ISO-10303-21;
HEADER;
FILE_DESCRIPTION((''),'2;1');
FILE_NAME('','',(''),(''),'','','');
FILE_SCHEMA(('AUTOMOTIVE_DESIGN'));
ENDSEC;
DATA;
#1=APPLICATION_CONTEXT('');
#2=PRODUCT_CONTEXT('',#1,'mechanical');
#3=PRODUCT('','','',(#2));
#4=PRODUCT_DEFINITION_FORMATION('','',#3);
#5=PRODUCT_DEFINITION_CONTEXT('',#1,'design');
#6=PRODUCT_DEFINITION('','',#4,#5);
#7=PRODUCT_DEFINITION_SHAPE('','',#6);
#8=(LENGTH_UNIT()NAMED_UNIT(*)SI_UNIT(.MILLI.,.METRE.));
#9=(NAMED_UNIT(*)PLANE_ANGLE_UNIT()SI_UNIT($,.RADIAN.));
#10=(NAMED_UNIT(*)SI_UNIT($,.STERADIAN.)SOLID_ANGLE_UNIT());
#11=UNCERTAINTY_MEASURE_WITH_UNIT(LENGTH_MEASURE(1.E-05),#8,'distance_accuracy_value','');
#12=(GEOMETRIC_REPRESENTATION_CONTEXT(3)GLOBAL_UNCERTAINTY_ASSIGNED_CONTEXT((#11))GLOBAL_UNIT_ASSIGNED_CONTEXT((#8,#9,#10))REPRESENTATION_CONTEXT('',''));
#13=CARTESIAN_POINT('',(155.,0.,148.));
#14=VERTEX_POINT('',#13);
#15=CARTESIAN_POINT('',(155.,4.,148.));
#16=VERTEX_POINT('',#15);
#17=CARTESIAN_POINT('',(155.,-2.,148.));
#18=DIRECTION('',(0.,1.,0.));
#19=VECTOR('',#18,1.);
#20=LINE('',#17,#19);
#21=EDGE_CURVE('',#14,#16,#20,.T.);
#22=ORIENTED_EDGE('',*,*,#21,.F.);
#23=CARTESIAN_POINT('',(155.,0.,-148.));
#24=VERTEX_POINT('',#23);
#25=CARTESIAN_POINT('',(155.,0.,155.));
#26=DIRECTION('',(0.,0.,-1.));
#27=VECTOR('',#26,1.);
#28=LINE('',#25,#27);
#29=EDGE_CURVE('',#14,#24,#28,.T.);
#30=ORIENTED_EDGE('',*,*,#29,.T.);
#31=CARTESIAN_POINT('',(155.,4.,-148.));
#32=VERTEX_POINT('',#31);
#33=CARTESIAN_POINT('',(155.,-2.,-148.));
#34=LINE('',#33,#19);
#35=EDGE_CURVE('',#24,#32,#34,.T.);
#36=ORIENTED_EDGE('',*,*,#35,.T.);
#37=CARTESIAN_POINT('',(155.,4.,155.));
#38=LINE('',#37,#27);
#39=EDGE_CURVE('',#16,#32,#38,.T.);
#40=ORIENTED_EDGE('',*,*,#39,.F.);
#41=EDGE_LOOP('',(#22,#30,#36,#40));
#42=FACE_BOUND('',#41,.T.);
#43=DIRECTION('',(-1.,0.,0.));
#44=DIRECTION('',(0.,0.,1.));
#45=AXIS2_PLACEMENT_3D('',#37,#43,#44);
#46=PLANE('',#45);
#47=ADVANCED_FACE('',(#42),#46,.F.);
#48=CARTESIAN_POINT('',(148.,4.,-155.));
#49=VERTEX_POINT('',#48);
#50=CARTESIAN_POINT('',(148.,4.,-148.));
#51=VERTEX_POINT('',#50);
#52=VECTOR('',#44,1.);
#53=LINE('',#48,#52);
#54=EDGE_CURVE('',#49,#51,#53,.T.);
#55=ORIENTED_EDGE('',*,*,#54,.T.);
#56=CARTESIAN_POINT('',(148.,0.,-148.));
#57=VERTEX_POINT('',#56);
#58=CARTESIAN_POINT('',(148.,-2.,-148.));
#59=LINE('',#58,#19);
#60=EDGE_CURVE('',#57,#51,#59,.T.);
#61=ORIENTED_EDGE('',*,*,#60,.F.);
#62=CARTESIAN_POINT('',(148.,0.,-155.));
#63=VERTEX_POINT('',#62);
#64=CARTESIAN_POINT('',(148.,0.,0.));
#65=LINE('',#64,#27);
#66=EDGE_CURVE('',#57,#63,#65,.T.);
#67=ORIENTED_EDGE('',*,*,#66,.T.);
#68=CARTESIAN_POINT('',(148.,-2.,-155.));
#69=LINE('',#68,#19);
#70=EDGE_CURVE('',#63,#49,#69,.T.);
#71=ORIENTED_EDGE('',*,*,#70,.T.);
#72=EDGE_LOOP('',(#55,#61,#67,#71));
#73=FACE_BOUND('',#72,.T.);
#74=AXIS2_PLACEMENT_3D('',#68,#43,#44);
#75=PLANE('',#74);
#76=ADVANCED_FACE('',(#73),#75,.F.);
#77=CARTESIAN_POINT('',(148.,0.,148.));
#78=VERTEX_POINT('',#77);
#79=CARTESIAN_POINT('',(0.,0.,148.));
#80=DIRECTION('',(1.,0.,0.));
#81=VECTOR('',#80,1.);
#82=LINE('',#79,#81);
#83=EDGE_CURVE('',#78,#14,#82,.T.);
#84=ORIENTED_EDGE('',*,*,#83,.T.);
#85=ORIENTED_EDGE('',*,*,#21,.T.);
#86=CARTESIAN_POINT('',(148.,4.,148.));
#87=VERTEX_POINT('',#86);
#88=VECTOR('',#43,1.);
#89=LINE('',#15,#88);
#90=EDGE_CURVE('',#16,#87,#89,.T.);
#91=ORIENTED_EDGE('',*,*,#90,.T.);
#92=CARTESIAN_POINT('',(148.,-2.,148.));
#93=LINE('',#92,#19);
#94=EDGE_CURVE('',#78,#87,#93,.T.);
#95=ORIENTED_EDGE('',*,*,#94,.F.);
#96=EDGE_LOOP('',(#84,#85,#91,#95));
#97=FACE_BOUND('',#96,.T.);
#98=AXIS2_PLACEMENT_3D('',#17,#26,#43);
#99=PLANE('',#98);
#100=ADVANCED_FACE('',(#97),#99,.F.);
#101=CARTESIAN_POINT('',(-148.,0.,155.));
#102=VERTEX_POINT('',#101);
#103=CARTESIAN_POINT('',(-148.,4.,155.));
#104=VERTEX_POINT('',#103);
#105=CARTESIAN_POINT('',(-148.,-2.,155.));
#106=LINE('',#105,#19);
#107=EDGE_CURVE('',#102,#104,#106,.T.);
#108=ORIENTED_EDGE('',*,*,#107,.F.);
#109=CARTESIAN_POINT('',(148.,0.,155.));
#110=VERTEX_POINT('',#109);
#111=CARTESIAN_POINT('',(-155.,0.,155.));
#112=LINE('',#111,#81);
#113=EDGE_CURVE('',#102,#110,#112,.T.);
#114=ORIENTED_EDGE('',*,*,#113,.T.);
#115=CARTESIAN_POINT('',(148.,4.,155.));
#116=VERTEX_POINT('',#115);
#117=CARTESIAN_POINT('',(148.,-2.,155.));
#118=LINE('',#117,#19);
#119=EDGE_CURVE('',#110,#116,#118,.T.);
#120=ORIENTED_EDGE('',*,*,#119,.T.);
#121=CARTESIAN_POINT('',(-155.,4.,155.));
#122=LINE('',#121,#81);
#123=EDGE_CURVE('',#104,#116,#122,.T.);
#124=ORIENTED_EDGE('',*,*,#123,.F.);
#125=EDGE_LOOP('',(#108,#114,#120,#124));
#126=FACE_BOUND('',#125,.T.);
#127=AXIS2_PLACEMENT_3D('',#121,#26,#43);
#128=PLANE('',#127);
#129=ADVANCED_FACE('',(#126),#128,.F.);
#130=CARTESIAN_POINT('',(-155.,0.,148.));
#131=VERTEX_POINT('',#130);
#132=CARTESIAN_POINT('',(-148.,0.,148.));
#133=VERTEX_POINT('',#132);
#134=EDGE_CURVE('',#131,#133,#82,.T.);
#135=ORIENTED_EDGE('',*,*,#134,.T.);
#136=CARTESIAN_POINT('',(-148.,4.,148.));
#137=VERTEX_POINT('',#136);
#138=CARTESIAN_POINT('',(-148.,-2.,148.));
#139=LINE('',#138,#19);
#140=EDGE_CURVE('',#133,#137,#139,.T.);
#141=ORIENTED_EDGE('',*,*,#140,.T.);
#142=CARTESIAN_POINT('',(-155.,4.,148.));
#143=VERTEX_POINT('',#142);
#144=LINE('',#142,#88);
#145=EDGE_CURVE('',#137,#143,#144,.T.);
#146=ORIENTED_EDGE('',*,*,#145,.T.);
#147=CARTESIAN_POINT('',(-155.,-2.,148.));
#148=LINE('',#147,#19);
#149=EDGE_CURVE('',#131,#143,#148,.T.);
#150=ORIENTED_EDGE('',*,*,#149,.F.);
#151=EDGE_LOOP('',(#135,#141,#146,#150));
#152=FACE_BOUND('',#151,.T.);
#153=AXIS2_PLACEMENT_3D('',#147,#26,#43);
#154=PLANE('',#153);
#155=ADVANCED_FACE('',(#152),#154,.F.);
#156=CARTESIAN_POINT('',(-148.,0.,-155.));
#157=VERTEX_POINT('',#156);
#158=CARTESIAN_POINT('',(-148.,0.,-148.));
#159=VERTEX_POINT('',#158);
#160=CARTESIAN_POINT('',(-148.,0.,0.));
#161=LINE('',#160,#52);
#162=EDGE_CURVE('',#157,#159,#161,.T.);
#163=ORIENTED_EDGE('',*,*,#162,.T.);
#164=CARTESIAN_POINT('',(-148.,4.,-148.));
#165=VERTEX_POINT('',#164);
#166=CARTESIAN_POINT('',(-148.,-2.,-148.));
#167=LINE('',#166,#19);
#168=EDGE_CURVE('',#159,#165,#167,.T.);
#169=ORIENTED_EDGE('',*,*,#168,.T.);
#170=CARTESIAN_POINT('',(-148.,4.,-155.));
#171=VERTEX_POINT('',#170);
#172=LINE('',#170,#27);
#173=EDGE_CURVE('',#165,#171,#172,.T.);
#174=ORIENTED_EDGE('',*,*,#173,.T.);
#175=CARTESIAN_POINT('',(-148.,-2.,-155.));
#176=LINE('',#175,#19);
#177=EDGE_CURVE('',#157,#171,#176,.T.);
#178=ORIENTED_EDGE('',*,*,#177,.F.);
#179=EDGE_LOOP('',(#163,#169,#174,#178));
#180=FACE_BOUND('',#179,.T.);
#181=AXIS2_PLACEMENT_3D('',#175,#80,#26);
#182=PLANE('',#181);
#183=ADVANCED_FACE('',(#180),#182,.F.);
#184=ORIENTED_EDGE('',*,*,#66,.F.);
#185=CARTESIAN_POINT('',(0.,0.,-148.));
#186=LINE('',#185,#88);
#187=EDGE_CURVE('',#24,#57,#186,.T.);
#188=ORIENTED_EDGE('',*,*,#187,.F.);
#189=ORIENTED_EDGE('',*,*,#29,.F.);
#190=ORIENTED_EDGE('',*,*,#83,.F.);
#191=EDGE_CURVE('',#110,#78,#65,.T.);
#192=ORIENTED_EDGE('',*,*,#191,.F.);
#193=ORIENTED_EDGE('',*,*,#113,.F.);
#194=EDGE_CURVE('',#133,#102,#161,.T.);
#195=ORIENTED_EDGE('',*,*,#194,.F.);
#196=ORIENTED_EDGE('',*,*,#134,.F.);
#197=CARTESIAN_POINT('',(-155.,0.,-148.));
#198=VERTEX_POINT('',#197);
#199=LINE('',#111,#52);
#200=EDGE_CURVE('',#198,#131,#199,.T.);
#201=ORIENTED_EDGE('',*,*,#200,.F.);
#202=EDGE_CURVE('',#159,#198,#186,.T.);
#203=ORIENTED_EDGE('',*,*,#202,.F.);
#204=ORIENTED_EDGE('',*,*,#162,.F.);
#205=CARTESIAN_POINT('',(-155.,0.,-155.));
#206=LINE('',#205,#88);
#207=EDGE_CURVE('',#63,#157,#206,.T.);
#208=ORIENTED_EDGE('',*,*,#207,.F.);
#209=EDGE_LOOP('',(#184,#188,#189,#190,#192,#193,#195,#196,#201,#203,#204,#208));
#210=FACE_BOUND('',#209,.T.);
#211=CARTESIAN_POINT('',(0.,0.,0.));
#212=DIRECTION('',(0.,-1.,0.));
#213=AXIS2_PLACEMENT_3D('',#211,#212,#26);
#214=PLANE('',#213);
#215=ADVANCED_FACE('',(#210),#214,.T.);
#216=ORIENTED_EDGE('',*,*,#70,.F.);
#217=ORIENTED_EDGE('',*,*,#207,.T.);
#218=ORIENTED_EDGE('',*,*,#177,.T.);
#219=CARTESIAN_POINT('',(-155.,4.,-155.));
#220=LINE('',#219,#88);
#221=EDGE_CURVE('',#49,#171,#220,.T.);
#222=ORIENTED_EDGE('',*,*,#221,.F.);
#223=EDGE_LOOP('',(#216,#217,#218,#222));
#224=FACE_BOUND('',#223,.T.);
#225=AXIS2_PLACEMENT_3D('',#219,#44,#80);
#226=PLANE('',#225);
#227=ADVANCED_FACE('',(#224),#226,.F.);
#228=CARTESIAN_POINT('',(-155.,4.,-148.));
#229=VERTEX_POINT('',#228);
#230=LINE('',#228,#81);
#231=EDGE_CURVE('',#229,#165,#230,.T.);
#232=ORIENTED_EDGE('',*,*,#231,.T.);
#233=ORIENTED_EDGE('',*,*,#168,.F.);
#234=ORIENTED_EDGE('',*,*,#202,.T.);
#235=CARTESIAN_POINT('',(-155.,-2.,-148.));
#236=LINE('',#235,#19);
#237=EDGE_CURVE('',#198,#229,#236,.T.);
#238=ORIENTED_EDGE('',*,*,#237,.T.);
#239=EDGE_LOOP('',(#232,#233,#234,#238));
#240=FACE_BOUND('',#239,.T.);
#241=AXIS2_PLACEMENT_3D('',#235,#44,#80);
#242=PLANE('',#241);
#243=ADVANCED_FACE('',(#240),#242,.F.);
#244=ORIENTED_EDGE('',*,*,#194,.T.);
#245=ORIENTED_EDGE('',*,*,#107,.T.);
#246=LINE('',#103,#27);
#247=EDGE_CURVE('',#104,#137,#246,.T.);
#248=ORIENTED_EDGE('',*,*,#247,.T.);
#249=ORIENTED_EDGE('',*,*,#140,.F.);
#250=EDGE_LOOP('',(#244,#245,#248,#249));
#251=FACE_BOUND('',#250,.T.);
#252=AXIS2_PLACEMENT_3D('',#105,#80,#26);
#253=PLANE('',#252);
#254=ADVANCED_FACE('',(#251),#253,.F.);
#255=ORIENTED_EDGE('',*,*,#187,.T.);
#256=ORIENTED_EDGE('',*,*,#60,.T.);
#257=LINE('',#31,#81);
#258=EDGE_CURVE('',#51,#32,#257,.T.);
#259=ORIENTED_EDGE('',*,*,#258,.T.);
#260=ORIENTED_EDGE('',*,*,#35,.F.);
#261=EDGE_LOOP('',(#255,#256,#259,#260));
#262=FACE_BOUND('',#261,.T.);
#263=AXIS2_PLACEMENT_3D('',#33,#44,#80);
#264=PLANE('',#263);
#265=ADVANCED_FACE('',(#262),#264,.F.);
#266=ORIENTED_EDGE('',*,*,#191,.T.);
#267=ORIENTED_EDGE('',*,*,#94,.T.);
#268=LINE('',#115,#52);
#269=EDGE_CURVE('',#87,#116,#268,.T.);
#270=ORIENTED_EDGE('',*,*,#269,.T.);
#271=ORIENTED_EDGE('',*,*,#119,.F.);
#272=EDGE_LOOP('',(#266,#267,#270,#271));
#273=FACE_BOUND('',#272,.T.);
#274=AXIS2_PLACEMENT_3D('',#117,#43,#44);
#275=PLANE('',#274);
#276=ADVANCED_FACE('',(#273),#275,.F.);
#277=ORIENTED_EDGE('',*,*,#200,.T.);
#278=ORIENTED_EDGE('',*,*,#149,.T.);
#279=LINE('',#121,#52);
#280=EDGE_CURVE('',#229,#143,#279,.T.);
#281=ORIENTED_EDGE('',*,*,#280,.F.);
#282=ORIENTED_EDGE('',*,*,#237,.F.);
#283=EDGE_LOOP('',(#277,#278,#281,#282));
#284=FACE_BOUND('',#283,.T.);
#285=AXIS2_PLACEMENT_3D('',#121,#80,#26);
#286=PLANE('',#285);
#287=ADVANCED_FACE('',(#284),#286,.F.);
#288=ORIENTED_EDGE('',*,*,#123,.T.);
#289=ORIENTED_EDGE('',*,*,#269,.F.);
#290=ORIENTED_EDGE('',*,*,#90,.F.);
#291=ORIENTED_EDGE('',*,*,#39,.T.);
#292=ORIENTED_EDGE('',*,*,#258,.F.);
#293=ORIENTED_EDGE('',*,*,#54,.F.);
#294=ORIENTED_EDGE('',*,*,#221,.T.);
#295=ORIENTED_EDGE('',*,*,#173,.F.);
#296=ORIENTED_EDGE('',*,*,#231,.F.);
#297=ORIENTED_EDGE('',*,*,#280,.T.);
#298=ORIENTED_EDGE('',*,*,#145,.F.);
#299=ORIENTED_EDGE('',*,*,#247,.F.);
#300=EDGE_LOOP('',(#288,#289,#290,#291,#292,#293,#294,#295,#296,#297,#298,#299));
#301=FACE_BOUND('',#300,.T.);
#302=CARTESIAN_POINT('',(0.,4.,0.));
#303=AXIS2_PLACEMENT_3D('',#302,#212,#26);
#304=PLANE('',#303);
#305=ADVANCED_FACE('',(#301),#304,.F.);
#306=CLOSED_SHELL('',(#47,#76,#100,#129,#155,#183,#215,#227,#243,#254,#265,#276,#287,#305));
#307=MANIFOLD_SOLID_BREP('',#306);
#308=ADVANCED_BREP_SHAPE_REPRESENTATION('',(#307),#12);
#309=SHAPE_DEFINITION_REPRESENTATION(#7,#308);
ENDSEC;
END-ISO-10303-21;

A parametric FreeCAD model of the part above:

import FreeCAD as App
import Part
import Sketcher

V = App.Vector


def add_polygon(sketch, points):
    """Adds a closed chain of lines whose ends are joined by coincident constraints."""
    first, n = sketch.GeometryCount, len(points)
    for a, b in zip(points, points[1:] + points[:1]):
        sketch.addGeometry(Part.LineSegment(App.Vector(*a, 0), App.Vector(*b, 0)), False)
    for i in range(n):
        sketch.addConstraint(Sketcher.Constraint("Coincident", first + i, 2, first + (i + 1) % n, 1))

doc = App.newDocument("Part")
body = doc.addObject("PartDesign::Body", "Body")

sketch1 = body.newObject("Sketcher::SketchObject", "Sketch")
sketch1.AttachmentSupport = (doc.getObject("XZ_Plane"), [""])
sketch1.MapMode = "FlatFace"
add_polygon(sketch1, [(-155, -155), (-155, 155), (155, 155), (155, -155)])
sketch1.addConstraint(Sketcher.Constraint("Vertical", 0))
sketch1.addConstraint(Sketcher.Constraint("Horizontal", 1))
sketch1.addConstraint(Sketcher.Constraint("Vertical", 2))
sketch1.addConstraint(Sketcher.Constraint("Horizontal", 3))
sketch1.addConstraint(Sketcher.Constraint("Symmetric", 0, 2, 2, 2, -1, 1))
sketch1.addConstraint(Sketcher.Constraint("Equal", 3, 0))
sketch1.addConstraint(Sketcher.Constraint("DistanceX", 1, 1, 1, 2, 310.0))
pad1 = body.newObject("PartDesign::Pad", "Pad")
pad1.Profile = sketch1
pad1.Length = 4
pad1.Reversed = True

sketch2 = body.newObject("Sketcher::SketchObject", "Sketch001")
sketch2.AttachmentSupport = (doc.getObject("XZ_Plane"), [""])
sketch2.MapMode = "FlatFace"
sketch2.AttachmentOffset = App.Placement(V(0, 0, -4), App.Rotation())
add_polygon(sketch2, [(148, 148), (148, 155), (155, 155), (155, 148)])
sketch2.addConstraint(Sketcher.Constraint("Vertical", 0))
sketch2.addConstraint(Sketcher.Constraint("Horizontal", 1))
sketch2.addConstraint(Sketcher.Constraint("Vertical", 2))
sketch2.addConstraint(Sketcher.Constraint("Horizontal", 3))
sketch2.addConstraint(Sketcher.Constraint("Equal", 3, 0))
sketch2.addConstraint(Sketcher.Constraint("DistanceX", 1, 1, 1, 2, 7.0))
sketch2.addConstraint(Sketcher.Constraint("DistanceX", -1, 1, 0, 2, 148.0))
sketch2.addConstraint(Sketcher.Constraint("DistanceY", -1, 1, 0, 2, 155.0))
pocket1 = body.newObject("PartDesign::Pocket", "Pocket")
pocket1.Profile = sketch2
pocket1.Length = 6
pocket1.Reversed = True
doc.recompute()

polarpattern = body.newObject("PartDesign::PolarPattern", "PolarPattern")
polarpattern.Originals = [pocket1]
polarpattern.Axis = (doc.getObject("Y_Axis"), [""])
polarpattern.Angle = 360
polarpattern.Occurrences = 4
body.Tip = polarpattern

doc.recompute()
